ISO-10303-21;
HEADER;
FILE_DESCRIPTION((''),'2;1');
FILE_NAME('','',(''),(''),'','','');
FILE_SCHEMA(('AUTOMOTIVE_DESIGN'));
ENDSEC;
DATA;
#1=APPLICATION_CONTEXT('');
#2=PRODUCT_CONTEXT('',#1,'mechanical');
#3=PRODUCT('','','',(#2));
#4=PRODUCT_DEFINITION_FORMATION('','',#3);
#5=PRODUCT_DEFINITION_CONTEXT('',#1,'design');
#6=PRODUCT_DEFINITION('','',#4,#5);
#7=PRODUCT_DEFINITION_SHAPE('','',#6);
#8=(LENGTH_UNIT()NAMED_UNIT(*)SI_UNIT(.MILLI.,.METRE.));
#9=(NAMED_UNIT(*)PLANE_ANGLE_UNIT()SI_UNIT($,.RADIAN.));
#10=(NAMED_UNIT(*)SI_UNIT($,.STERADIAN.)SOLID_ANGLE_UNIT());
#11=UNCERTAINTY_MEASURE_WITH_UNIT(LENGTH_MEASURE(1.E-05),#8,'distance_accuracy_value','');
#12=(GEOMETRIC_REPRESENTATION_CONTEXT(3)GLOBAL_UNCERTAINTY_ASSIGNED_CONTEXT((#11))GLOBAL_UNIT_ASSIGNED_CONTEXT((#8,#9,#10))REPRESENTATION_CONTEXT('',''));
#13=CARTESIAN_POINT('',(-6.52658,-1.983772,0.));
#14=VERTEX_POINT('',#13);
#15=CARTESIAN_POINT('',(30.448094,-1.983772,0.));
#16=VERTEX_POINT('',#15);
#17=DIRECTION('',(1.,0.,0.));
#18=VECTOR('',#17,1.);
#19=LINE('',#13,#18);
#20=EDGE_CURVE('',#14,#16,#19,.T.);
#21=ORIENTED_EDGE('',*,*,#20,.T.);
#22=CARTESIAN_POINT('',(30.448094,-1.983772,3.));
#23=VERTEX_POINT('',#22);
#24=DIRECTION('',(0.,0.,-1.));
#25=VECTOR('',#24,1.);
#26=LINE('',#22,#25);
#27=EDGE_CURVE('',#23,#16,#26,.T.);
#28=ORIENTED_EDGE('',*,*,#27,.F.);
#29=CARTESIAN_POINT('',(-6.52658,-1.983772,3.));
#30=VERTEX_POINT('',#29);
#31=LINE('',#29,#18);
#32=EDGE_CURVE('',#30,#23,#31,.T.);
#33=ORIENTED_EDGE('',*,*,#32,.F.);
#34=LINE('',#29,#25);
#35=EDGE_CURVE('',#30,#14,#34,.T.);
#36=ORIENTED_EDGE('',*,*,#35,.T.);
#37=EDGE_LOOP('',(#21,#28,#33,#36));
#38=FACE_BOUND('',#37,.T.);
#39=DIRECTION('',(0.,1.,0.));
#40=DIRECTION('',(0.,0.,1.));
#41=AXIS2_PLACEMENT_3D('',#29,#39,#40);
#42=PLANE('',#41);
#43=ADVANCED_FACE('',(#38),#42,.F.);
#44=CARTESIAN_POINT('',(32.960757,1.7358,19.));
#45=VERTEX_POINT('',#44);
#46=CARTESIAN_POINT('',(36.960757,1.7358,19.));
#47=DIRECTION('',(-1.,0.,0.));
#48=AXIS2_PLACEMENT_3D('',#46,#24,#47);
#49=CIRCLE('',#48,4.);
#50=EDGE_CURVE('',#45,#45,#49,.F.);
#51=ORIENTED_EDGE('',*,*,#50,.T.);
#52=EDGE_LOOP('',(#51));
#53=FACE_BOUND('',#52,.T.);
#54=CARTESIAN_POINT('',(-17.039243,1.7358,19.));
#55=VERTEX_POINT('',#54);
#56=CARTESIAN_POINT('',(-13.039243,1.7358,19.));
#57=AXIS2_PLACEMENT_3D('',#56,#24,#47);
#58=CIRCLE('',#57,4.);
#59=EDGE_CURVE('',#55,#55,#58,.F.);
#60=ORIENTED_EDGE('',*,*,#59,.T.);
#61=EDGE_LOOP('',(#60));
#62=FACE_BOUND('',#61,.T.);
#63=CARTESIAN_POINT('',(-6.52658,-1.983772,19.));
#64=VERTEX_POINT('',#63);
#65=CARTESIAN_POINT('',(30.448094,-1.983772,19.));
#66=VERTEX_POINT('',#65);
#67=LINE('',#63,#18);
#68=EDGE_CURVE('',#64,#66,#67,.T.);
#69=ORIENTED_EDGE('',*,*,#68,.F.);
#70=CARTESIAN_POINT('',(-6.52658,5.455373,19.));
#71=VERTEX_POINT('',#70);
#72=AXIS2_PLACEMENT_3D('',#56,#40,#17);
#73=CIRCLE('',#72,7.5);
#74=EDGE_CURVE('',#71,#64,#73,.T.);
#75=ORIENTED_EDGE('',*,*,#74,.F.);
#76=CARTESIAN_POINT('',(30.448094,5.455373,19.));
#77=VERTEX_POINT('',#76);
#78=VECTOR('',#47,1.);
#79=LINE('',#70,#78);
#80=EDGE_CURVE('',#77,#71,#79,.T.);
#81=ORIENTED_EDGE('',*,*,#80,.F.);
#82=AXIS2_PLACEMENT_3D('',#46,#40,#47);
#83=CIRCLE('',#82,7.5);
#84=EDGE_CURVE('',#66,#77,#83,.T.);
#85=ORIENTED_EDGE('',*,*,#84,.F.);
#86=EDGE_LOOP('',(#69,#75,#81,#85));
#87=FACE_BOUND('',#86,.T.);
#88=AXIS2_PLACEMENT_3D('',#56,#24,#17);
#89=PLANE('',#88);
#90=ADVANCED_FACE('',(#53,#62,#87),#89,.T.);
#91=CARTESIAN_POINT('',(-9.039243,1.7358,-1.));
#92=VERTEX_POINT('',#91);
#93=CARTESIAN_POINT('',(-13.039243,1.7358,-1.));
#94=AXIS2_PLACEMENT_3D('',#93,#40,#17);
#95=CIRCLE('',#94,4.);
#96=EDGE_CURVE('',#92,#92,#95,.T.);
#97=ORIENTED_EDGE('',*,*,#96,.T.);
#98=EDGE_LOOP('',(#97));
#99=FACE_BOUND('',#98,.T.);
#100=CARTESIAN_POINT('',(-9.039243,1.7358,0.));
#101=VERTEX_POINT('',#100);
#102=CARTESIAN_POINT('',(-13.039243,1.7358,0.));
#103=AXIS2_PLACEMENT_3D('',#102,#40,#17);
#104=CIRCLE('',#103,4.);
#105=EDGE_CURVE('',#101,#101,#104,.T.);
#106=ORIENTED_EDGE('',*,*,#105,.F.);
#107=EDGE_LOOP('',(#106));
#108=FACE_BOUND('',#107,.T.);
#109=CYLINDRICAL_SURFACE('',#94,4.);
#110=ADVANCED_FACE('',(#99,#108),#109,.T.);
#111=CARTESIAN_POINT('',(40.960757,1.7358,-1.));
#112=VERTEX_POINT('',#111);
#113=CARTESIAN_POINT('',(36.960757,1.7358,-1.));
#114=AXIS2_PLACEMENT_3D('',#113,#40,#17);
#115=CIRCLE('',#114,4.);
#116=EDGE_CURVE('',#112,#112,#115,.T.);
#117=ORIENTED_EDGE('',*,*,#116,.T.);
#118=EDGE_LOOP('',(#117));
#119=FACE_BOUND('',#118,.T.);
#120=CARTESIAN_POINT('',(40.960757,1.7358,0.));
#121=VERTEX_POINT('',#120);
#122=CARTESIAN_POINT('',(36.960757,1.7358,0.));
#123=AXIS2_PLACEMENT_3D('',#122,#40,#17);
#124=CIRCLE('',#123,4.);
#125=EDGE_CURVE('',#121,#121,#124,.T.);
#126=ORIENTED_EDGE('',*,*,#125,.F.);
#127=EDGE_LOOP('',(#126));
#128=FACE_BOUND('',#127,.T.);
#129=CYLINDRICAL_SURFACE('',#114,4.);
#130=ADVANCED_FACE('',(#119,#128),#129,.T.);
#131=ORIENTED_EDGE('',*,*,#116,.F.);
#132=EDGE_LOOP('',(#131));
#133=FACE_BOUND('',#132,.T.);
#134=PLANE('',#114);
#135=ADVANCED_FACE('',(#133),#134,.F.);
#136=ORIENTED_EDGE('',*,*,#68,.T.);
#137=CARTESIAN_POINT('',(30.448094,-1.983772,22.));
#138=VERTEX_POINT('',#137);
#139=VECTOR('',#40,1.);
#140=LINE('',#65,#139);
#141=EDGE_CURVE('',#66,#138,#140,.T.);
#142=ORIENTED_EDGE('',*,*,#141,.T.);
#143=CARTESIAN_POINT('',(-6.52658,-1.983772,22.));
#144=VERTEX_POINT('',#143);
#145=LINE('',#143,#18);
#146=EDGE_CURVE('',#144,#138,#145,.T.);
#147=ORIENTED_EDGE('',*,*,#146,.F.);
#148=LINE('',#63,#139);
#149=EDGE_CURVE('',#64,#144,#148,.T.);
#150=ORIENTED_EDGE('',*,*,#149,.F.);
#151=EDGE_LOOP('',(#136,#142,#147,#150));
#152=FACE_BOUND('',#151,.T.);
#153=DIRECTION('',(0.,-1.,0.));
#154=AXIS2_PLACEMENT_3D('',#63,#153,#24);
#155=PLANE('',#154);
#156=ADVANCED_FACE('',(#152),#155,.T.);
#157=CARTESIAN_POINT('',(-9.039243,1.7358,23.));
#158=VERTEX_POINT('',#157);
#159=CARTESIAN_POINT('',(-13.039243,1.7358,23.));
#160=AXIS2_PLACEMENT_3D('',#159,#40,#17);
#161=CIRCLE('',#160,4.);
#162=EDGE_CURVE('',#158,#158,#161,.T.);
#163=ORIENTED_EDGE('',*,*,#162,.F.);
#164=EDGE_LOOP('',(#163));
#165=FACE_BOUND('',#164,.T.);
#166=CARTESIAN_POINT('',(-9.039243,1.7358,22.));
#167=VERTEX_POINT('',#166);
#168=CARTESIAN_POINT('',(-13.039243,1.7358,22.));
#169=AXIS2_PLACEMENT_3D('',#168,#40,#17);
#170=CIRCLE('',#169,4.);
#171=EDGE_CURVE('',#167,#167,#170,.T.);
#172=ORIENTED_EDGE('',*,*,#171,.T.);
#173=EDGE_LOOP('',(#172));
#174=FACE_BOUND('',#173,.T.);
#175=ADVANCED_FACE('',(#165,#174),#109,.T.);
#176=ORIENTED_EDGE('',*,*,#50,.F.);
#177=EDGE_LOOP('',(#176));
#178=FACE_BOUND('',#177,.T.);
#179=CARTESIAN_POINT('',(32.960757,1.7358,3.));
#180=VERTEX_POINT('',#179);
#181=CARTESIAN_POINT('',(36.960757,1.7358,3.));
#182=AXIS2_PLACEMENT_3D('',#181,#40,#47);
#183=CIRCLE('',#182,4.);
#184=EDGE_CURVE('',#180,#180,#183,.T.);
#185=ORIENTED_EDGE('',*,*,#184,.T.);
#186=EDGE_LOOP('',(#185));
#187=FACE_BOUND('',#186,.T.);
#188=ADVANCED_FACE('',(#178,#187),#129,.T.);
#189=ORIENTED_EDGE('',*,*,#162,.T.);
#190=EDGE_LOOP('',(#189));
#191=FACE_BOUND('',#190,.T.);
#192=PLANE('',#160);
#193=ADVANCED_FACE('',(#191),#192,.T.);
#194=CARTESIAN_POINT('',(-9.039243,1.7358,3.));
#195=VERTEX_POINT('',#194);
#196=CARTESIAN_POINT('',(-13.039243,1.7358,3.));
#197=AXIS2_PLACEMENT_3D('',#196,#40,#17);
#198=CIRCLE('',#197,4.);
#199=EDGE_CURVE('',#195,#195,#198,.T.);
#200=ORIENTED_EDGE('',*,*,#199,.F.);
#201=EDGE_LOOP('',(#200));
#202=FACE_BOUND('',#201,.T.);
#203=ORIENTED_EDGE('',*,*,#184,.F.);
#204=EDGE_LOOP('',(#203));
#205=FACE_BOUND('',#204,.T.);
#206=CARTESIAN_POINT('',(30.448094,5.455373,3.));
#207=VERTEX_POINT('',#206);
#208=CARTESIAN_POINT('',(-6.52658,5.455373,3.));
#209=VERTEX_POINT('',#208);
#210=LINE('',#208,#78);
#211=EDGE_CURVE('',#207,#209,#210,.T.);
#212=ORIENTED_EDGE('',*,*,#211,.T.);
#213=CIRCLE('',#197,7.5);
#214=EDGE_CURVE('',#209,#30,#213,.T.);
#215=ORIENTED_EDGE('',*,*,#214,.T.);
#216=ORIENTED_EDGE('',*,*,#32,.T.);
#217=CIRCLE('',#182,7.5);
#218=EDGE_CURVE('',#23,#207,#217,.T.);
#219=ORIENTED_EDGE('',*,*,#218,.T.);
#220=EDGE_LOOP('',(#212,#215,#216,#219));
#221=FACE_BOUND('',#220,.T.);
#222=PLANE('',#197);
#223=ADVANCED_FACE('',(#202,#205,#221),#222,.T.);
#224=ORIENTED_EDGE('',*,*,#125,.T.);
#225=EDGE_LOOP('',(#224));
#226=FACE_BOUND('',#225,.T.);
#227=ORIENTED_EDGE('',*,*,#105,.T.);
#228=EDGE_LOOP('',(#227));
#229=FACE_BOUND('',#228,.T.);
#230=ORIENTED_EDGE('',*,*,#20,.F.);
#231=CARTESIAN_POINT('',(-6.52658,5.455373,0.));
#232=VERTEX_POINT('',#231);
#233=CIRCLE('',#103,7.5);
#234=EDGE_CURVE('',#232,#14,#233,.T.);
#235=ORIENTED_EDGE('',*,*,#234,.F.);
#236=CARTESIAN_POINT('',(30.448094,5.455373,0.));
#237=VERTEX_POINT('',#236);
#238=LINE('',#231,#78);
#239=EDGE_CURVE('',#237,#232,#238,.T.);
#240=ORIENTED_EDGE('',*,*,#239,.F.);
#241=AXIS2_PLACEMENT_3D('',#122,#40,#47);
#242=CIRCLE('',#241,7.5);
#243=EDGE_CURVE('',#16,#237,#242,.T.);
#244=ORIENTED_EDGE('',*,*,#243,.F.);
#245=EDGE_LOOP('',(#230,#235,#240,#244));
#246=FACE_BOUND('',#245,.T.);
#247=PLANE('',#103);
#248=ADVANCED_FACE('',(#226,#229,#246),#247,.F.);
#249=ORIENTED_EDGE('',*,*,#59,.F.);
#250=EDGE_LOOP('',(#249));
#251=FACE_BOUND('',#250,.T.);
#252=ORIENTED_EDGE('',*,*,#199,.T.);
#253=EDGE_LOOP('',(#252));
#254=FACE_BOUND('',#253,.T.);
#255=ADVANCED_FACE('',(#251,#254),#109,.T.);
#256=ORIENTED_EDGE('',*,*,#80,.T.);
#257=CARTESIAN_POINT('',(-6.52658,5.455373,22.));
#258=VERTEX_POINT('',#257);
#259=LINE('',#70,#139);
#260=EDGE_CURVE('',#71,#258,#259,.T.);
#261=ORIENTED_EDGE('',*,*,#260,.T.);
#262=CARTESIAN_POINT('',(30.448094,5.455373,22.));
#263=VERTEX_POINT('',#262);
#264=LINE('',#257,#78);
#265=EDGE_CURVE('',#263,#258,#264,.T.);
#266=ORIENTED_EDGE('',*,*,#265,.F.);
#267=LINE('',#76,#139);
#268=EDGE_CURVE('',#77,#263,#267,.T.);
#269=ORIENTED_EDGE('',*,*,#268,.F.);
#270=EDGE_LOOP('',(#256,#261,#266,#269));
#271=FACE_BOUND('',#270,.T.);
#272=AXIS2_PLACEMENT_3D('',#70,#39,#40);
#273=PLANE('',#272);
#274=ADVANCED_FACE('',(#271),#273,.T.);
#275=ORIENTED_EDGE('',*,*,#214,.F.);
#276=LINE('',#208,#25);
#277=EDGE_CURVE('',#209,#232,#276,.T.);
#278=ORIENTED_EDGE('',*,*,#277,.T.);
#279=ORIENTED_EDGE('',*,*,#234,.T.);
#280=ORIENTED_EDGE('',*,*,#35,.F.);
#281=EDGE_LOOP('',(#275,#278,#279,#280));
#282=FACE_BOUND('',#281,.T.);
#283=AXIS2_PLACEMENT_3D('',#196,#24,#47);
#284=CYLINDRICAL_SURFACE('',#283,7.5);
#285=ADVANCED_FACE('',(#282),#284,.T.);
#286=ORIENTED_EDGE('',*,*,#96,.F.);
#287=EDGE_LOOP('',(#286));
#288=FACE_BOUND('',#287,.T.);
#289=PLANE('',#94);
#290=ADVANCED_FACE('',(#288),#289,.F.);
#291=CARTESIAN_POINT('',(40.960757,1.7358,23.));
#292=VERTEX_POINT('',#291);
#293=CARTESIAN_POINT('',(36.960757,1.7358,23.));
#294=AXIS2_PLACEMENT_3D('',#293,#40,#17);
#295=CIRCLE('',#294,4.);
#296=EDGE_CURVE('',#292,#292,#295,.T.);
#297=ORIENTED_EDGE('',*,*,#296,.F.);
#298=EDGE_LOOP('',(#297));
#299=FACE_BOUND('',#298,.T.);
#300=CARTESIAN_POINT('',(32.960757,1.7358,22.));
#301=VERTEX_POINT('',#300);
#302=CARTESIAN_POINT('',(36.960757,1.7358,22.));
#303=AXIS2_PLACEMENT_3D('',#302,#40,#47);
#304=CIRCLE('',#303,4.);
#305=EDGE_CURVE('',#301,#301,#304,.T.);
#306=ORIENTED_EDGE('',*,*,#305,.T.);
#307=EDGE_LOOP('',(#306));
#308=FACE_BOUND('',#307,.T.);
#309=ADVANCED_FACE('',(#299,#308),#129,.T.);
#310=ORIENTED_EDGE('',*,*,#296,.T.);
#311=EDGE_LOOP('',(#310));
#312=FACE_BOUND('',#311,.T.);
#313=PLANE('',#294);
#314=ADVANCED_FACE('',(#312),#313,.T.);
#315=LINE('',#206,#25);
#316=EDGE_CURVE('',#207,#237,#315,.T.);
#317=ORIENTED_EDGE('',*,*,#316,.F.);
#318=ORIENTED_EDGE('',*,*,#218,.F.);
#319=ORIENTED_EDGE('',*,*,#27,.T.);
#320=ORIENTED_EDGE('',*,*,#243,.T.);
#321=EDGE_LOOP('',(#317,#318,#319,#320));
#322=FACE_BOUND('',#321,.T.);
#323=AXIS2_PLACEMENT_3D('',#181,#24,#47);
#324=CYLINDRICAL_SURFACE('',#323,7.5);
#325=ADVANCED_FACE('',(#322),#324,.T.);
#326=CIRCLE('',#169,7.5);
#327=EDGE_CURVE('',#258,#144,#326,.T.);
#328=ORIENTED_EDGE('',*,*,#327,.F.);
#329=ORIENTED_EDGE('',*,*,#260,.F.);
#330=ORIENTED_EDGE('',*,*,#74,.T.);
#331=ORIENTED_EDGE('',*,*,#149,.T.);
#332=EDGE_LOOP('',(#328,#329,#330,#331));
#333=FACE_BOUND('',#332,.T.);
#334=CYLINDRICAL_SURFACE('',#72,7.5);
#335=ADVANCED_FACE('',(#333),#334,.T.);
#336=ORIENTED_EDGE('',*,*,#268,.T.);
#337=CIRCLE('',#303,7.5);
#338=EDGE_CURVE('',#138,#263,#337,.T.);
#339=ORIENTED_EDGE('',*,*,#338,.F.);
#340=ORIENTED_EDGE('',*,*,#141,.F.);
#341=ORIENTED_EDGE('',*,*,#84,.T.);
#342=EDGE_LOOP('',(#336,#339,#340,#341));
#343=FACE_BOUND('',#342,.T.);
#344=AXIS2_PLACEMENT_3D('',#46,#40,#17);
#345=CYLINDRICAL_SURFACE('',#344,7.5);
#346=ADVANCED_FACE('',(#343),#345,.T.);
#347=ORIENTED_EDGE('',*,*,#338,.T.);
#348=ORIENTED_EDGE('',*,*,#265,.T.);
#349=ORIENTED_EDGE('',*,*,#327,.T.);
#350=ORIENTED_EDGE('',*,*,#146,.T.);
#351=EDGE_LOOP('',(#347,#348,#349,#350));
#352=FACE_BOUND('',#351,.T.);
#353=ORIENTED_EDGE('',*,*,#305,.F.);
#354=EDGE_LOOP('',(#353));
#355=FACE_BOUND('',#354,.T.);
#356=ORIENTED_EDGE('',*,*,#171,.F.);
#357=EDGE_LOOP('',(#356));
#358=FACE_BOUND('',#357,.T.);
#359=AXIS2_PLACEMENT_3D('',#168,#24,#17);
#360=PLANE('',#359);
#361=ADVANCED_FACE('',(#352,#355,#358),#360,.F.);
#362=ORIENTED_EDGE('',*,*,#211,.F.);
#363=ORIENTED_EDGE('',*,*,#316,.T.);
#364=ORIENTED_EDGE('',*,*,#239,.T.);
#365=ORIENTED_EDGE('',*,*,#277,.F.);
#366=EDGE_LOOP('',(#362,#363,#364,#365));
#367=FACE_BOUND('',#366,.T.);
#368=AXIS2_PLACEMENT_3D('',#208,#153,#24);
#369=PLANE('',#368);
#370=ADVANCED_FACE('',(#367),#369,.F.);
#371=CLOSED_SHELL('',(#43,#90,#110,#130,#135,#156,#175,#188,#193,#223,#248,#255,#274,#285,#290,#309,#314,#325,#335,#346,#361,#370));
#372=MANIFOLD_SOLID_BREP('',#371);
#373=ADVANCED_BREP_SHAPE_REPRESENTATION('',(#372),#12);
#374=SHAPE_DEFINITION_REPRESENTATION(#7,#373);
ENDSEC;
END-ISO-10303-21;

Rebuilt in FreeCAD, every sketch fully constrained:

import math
import FreeCAD as App
import Part
import Sketcher

V = App.Vector

doc = App.newDocument("Part")
body = doc.addObject("PartDesign::Body", "Body")

sketch1 = body.newObject("Sketcher::SketchObject", "Sketch")
sketch1.AttachmentSupport = (doc.getObject("XY_Plane"), [""])
sketch1.MapMode = "FlatFace"
sketch1.addGeometry(Part.LineSegment(V(30.4, 5.5, 0), V(-6.5, 5.5, 0)), False)
sketch1.addGeometry(Part.ArcOfCircle(Part.Circle(V(-13, 1.7, 0), V(0, 0, 1), 7.5), math.radians(30), math.radians(330)), False)
sketch1.addGeometry(Part.LineSegment(V(-6.5, -2, 0), V(30.4, -2, 0)), False)
sketch1.addGeometry(Part.ArcOfCircle(Part.Circle(V(37, 1.7, 0), V(0, 0, 1), 7.5), math.radians(-150), math.radians(150)), False)
sketch1.addGeometry(Part.Circle(V(37, 1.7, 0), V(0, 0, 1), 4), False)
sketch1.addGeometry(Part.Circle(V(-13, 1.7, 0), V(0, 0, 1), 4), False)
sketch1.addConstraint(Sketcher.Constraint("Coincident", 0, 2, 1, 1))
sketch1.addConstraint(Sketcher.Constraint("Coincident", 1, 2, 2, 1))
sketch1.addConstraint(Sketcher.Constraint("Coincident", 2, 2, 3, 1))
sketch1.addConstraint(Sketcher.Constraint("Coincident", 3, 2, 0, 1))
sketch1.addConstraint(Sketcher.Constraint("Horizontal", 0))
sketch1.addConstraint(Sketcher.Constraint("Horizontal", 2))
sketch1.addConstraint(Sketcher.Constraint("Coincident", 4, 3, 3, 3))
sketch1.addConstraint(Sketcher.Constraint("Coincident", 5, 3, 1, 3))
sketch1.addConstraint(Sketcher.Constraint("Equal", 1, 3))
sketch1.addConstraint(Sketcher.Constraint("Equal", 4, 5))
sketch1.addConstraint(Sketcher.Constraint("Horizontal", 1, 3, 3, 3))
sketch1.addConstraint(Sketcher.Constraint("Vertical", 0, 2, 1, 2))
sketch1.addConstraint(Sketcher.Constraint("Diameter", 4, 8.0))
sketch1.addConstraint(Sketcher.Constraint("Radius", 1, 7.5))
sketch1.addConstraint(Sketcher.Constraint("DistanceX", 1, 3, 3, 3, 50.0))
sketch1.addConstraint(Sketcher.Constraint("DistanceY", -1, 1, 1, 3, 1.7358))
sketch1.addConstraint(Sketcher.Constraint("DistanceX", 0, 2, 0, 1, 36.974674))
sketch1.addConstraint(Sketcher.Constraint("DistanceX", 0, 2, -1, 1, 6.52658))
pad1 = body.newObject("PartDesign::Pad", "Pad")
pad1.Profile = sketch1
pad1.Length = 3

sketch2 = body.newObject("Sketcher::SketchObject", "Sketch001")
sketch2.AttachmentSupport = (doc.getObject("XY_Plane"), [""])
sketch2.MapMode = "FlatFace"
sketch2.AttachmentOffset = App.Placement(V(0, 0, 3), App.Rotation())
sketch2.addGeometry(Part.Circle(V(-13, 1.7, 0), V(0, 0, 1), 4), False)
sketch2.addGeometry(Part.Circle(V(37, 1.7, 0), V(0, 0, 1), 4), False)
sketch2.addConstraint(Sketcher.Constraint("Equal", 0, 1))
sketch2.addConstraint(Sketcher.Constraint("Horizontal", 0, 3, 1, 3))
sketch2.addConstraint(Sketcher.Constraint("Diameter", 0, 8.0))
sketch2.addConstraint(Sketcher.Constraint("DistanceX", 0, 3, 1, 3, 50.0))
sketch2.addConstraint(Sketcher.Constraint("DistanceY", -1, 1, 0, 3, 1.7358))
sketch2.addConstraint(Sketcher.Constraint("DistanceX", 0, 3, -1, 1, 13.039243))
pad2 = body.newObject("PartDesign::Pad", "Pad001")
pad2.Profile = sketch2
pad2.Type = "TwoLengths"
pad2.Length = 20
pad2.Length2 = 4
doc.recompute()

datumplane = body.newObject("PartDesign::Plane", "DatumPlane")
datumplane.AttachmentSupport = (doc.getObject("XY_Plane"), [""])
datumplane.MapMode = "FlatFace"
datumplane.AttachmentOffset = App.Placement(V(0, 0, 11), App.Rotation())
mirrored = body.newObject("PartDesign::Mirrored", "Mirrored")
mirrored.Originals = [pad1]
mirrored.MirrorPlane = (datumplane, [""])
body.Tip = mirrored

doc.recompute()
